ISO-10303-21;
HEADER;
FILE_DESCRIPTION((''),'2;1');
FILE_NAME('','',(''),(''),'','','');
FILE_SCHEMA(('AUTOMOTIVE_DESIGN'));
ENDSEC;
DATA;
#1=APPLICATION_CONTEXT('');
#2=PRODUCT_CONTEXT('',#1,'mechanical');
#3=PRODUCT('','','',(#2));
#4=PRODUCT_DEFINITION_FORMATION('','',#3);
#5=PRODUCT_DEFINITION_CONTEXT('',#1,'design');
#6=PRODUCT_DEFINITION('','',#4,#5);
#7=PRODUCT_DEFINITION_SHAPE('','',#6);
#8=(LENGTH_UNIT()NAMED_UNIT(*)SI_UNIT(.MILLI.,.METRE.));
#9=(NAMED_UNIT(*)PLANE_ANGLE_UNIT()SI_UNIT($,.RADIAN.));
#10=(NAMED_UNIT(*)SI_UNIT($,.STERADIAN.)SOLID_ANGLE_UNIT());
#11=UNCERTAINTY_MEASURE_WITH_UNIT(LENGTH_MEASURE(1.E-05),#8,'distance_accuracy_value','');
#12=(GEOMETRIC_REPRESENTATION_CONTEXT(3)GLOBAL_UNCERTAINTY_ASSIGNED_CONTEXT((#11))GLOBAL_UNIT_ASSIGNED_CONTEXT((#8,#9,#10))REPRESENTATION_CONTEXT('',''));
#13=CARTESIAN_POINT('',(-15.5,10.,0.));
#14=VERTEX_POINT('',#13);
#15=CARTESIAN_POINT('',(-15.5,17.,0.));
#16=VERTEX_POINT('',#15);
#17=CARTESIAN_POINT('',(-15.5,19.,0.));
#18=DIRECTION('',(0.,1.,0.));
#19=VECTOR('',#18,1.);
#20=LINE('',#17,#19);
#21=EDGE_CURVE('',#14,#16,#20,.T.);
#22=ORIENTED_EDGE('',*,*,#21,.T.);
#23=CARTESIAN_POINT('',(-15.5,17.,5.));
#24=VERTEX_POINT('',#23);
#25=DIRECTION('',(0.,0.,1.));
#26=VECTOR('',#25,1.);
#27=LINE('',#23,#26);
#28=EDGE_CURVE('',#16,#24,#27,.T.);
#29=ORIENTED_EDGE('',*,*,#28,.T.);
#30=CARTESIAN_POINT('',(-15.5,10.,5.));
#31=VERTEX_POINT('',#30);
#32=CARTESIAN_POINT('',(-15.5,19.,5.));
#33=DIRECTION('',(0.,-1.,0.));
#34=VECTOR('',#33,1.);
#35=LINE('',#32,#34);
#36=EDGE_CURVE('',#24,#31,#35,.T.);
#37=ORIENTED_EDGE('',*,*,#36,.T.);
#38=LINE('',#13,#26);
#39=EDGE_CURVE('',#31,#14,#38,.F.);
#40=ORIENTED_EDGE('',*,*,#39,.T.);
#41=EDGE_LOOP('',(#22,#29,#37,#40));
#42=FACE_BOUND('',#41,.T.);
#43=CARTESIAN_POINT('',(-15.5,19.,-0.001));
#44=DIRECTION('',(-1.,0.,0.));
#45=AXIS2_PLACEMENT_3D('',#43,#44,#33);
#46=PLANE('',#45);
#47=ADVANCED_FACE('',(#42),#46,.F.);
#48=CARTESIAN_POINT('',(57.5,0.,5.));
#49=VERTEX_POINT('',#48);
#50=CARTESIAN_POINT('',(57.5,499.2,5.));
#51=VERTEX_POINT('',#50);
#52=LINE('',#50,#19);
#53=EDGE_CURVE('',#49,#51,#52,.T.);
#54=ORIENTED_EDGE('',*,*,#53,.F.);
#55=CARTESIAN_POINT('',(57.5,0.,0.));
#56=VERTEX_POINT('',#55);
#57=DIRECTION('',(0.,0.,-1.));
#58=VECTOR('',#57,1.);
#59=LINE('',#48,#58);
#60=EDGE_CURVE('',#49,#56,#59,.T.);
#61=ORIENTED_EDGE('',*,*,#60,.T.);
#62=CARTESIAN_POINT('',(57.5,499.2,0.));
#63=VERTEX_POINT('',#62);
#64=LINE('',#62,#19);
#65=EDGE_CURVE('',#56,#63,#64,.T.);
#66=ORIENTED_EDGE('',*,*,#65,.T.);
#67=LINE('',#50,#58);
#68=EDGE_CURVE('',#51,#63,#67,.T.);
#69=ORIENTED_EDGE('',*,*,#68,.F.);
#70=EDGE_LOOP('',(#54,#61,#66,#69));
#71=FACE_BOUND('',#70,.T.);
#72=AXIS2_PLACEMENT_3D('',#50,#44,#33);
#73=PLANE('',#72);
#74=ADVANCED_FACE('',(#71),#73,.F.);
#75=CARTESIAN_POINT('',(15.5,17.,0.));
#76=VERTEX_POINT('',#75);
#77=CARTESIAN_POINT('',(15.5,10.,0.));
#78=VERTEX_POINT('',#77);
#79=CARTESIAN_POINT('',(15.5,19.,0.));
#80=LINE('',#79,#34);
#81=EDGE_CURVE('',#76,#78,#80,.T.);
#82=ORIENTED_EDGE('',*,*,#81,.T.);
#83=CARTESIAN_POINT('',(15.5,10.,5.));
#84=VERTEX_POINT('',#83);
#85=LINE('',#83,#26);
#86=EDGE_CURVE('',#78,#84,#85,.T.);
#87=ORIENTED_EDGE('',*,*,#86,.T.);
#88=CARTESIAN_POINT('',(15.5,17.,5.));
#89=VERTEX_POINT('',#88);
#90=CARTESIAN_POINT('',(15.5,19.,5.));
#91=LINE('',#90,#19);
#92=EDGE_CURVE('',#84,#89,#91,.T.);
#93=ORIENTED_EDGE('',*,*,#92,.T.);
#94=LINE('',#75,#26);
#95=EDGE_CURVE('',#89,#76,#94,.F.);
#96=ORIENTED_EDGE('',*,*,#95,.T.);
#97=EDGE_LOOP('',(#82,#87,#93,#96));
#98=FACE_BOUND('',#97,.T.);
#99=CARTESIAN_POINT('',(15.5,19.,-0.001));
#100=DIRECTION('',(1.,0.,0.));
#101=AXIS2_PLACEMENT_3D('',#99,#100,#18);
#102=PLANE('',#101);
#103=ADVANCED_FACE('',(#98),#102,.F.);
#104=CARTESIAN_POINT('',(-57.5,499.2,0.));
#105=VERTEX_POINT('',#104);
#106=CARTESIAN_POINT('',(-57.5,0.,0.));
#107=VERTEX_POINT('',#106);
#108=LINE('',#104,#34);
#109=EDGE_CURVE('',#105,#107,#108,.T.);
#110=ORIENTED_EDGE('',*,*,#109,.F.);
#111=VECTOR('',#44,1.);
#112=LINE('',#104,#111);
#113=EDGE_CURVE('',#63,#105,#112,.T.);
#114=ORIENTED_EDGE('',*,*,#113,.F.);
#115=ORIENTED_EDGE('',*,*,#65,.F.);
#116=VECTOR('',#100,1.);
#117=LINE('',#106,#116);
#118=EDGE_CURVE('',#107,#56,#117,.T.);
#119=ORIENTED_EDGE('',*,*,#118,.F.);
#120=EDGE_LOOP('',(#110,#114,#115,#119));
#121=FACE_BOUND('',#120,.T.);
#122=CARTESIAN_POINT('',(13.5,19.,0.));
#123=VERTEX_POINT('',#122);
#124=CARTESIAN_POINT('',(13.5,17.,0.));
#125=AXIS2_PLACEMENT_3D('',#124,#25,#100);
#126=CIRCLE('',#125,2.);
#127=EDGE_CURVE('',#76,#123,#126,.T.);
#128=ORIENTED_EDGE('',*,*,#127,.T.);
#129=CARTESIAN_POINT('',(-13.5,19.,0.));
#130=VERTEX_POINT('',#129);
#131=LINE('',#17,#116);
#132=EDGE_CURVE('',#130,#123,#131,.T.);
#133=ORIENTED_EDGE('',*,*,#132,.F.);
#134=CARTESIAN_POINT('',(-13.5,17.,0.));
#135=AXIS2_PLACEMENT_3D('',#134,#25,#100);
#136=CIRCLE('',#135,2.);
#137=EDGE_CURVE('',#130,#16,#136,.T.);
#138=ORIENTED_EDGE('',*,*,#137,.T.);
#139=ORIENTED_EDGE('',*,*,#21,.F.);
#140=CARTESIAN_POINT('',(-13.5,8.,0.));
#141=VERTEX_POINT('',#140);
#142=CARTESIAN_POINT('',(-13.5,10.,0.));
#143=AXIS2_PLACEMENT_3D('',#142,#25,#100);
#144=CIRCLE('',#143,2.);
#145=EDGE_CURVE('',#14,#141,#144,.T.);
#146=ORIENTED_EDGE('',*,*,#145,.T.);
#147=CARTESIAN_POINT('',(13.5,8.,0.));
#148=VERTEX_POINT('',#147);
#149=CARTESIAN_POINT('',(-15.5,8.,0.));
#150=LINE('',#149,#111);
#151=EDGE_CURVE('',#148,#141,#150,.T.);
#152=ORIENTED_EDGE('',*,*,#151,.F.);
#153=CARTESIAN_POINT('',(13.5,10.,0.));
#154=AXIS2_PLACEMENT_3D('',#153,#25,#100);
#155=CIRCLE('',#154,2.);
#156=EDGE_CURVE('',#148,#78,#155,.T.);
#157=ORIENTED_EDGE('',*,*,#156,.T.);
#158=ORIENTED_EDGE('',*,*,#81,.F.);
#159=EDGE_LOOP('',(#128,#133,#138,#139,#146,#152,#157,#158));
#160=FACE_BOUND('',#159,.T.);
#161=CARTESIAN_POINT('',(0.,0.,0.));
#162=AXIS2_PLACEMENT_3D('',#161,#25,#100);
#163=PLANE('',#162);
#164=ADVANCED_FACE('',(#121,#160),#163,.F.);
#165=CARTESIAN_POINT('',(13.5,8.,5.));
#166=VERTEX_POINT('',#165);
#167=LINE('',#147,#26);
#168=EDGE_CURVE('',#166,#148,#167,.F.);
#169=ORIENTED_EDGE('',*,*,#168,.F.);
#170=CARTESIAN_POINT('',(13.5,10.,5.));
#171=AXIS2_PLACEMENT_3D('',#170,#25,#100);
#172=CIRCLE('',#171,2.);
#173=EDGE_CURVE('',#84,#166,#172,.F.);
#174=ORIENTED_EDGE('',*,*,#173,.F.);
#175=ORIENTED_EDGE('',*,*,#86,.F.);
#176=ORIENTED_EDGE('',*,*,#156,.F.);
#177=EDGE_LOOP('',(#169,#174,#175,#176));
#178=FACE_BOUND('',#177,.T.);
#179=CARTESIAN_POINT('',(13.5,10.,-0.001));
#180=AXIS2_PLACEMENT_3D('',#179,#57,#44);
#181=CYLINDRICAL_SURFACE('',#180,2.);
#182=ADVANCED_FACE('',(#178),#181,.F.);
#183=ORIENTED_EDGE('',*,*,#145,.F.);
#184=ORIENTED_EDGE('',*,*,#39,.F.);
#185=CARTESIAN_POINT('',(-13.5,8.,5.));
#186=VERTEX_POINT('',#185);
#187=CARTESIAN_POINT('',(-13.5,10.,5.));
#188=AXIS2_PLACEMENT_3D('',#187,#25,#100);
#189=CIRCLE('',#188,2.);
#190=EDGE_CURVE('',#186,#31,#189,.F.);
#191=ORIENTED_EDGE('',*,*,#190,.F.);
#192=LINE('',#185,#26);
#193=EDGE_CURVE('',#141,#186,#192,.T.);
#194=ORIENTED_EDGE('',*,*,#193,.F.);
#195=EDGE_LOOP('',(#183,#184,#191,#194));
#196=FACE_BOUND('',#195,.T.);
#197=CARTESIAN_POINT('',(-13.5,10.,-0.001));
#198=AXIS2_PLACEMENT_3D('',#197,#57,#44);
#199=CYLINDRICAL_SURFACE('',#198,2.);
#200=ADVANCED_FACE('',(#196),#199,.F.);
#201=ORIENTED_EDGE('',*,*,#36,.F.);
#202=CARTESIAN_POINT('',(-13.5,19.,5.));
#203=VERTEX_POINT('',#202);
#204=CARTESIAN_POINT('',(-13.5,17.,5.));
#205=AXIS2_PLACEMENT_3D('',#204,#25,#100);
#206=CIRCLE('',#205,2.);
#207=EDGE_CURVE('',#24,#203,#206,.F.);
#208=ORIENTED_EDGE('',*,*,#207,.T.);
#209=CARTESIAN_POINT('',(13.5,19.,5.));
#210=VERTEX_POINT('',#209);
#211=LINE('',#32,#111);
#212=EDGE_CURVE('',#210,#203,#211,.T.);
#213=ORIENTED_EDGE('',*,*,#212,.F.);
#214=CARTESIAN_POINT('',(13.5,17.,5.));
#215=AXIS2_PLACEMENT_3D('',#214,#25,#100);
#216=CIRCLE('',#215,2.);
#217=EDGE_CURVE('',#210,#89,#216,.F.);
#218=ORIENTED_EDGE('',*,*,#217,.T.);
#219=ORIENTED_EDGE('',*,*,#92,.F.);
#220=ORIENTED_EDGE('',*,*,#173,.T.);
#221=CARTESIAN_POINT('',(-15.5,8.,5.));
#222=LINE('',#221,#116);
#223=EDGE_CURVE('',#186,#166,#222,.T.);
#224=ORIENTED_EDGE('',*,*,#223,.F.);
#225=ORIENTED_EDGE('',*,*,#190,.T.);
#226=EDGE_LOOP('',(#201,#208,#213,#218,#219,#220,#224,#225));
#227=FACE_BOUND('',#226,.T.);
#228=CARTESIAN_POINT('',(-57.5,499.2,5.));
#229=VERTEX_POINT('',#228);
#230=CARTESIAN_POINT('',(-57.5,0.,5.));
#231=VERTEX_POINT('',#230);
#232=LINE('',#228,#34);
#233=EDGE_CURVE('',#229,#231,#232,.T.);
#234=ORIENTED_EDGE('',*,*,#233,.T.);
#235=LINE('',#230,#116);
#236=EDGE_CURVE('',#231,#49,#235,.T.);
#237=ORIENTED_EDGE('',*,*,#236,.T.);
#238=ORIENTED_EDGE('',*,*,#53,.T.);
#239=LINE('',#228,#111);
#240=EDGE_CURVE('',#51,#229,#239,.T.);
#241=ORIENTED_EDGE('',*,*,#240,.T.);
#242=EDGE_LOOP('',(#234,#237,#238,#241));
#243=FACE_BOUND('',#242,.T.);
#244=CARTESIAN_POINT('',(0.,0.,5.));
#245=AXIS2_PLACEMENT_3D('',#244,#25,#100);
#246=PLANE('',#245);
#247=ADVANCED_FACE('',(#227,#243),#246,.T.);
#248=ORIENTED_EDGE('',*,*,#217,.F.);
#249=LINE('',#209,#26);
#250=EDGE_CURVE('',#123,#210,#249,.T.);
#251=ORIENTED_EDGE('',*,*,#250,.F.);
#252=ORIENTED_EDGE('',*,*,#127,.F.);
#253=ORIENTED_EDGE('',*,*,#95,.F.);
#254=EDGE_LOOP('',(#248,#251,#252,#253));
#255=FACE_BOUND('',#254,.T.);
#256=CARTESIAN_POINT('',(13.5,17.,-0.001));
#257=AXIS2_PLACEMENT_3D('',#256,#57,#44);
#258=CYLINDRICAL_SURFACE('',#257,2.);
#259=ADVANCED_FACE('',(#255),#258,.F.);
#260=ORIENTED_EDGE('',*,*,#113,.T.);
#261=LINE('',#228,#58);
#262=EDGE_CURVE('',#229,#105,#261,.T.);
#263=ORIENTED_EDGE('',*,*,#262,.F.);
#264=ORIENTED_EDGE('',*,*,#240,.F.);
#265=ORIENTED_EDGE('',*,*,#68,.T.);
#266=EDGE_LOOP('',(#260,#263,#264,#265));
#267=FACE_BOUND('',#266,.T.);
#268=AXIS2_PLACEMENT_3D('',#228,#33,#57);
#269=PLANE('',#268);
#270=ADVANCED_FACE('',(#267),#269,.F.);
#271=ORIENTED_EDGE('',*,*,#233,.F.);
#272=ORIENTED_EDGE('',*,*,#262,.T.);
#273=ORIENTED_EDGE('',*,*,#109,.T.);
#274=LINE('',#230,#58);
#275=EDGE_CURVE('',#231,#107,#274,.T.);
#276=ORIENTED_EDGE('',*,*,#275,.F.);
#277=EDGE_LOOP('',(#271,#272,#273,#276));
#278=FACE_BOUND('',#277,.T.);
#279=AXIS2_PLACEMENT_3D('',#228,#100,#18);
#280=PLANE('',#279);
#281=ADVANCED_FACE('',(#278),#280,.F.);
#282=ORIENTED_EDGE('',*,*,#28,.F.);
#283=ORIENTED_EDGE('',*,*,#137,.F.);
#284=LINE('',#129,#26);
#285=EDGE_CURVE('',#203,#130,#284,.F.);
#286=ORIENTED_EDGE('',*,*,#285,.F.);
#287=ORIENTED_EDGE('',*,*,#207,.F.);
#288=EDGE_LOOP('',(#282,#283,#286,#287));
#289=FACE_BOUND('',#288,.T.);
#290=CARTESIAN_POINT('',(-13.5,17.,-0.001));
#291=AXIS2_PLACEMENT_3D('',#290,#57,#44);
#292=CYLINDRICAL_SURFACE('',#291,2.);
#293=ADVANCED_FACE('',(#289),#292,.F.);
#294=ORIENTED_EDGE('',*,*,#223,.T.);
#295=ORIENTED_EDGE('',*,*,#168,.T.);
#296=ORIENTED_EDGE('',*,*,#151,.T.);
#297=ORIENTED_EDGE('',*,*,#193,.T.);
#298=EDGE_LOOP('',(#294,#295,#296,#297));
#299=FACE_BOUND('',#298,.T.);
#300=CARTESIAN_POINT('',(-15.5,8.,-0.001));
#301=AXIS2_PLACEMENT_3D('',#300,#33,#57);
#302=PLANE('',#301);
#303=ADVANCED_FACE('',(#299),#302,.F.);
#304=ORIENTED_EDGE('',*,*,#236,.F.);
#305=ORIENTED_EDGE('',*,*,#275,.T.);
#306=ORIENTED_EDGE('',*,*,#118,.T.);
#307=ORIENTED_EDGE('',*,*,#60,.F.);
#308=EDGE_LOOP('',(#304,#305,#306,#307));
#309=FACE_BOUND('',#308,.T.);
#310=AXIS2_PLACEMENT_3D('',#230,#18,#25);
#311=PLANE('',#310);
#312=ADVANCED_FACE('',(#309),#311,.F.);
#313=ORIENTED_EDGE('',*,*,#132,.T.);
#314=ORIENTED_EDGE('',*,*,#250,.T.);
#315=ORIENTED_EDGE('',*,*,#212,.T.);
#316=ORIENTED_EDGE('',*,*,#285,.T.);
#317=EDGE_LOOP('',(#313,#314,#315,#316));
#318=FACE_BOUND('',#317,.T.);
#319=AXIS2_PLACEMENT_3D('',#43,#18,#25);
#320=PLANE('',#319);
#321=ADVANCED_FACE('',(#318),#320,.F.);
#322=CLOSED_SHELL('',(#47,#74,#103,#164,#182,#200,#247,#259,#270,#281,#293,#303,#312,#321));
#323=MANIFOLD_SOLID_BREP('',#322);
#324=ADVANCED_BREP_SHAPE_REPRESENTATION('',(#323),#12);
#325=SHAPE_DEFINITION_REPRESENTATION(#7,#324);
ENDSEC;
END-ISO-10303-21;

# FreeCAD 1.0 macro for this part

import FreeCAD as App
import Part
import Sketcher
from FreeCAD import Vector
Q = App.Units.Quantity


def edges_at(feature, points):
    """Names of the edges that pass closest to the given points."""
    edges = feature.Shape.Edges
    near = lambda p: min(range(len(edges)), key=lambda i: edges[i].distToShape(Part.Vertex(*p))[0])
    return sorted({f"Edge{near(p) + 1}" for p in points})

doc = App.newDocument("Part")
body = doc.addObject("PartDesign::Body", "Body")

sketch1 = doc.addObject("Sketcher::SketchObject", "Sketch")
body.addObject(sketch1)
sketch1.AttachmentSupport = (doc.XY_Plane, [""])
sketch1.MapMode = "FlatFace"
sketch1.addGeometry(Part.LineSegment(Vector(-58, 499, 0), Vector(-58, 0, 0)), False)
sketch1.addGeometry(Part.LineSegment(Vector(-58, 0, 0), Vector(58, 0, 0)), False)
sketch1.addGeometry(Part.LineSegment(Vector(58, 0, 0), Vector(58, 499, 0)), False)
sketch1.addGeometry(Part.LineSegment(Vector(58, 499, 0), Vector(-58, 499, 0)), False)
sketch1.addConstraint(Sketcher.Constraint("Coincident", 0, 2, 1, 1))
sketch1.addConstraint(Sketcher.Constraint("Coincident", 1, 2, 2, 1))
sketch1.addConstraint(Sketcher.Constraint("Coincident", 2, 2, 3, 1))
sketch1.addConstraint(Sketcher.Constraint("Coincident", 3, 2, 0, 1))
sketch1.addConstraint(Sketcher.Constraint("Vertical", 0))
sketch1.addConstraint(Sketcher.Constraint("Horizontal", 1))
sketch1.addConstraint(Sketcher.Constraint("Vertical", 2))
sketch1.addConstraint(Sketcher.Constraint("Horizontal", 3))
sketch1.addConstraint(Sketcher.Constraint("Symmetric", 0, 2, 1, 2, -1, 1))
sketch1.addConstraint(Sketcher.Constraint("DistanceX", 1, 1, 1, 2, Q("115 mm")))
sketch1.addConstraint(Sketcher.Constraint("DistanceY", 0, 2, 0, 1, Q("499.2 mm")))
pad1 = doc.addObject("PartDesign::Pad", "Pad")
body.addObject(pad1)
pad1.Profile = sketch1
pad1.Length = 5

sketch2 = doc.addObject("Sketcher::SketchObject", "Sketch001")
body.addObject(sketch2)
sketch2.AttachmentSupport = (doc.XY_Plane, [""])
sketch2.MapMode = "FlatFace"
sketch2.AttachmentOffset = App.Placement(Vector(0, 0, 5), App.Rotation())
sketch2.addGeometry(Part.LineSegment(Vector(-16, 19, 0), Vector(-16, 8, 0)), False)
sketch2.addGeometry(Part.LineSegment(Vector(-16, 8, 0), Vector(16, 8, 0)), False)
sketch2.addGeometry(Part.LineSegment(Vector(16, 8, 0), Vector(16, 19, 0)), False)
sketch2.addGeometry(Part.LineSegment(Vector(16, 19, 0), Vector(-16, 19, 0)), False)
sketch2.addConstraint(Sketcher.Constraint("Coincident", 0, 2, 1, 1))
sketch2.addConstraint(Sketcher.Constraint("Coincident", 1, 2, 2, 1))
sketch2.addConstraint(Sketcher.Constraint("Coincident", 2, 2, 3, 1))
sketch2.addConstraint(Sketcher.Constraint("Coincident", 3, 2, 0, 1))
sketch2.addConstraint(Sketcher.Constraint("Vertical", 0))
sketch2.addConstraint(Sketcher.Constraint("Horizontal", 1))
sketch2.addConstraint(Sketcher.Constraint("Vertical", 2))
sketch2.addConstraint(Sketcher.Constraint("Horizontal", 3))
sketch2.addConstraint(Sketcher.Constraint("DistanceX", 1, 1, 1, 2, Q("31 mm")))
sketch2.addConstraint(Sketcher.Constraint("DistanceY", 0, 2, 0, 1, Q("11 mm")))
sketch2.addConstraint(Sketcher.Constraint("DistanceY", -1, 1, 0, 2, Q("8 mm")))
sketch2.addConstraint(Sketcher.Constraint("DistanceX", 0, 2, -1, 1, Q("15.5 mm")))
pocket1 = doc.addObject("PartDesign::Pocket", "Pocket")
body.addObject(pocket1)
pocket1.Profile = sketch2
pocket1.Type = "UpToFirst"
doc.recompute()

fillet = doc.addObject("PartDesign::Fillet", "Fillet")
body.addObject(fillet)
fillet.Base = (pocket1, edges_at(pocket1, [
    (-15.5, 8, 2.5),
    (-15.5, 19, 2.5),
    (15.5, 19, 2.5),
    (15.5, 8, 2.5),
]))
fillet.Radius = 2

doc.recompute()
